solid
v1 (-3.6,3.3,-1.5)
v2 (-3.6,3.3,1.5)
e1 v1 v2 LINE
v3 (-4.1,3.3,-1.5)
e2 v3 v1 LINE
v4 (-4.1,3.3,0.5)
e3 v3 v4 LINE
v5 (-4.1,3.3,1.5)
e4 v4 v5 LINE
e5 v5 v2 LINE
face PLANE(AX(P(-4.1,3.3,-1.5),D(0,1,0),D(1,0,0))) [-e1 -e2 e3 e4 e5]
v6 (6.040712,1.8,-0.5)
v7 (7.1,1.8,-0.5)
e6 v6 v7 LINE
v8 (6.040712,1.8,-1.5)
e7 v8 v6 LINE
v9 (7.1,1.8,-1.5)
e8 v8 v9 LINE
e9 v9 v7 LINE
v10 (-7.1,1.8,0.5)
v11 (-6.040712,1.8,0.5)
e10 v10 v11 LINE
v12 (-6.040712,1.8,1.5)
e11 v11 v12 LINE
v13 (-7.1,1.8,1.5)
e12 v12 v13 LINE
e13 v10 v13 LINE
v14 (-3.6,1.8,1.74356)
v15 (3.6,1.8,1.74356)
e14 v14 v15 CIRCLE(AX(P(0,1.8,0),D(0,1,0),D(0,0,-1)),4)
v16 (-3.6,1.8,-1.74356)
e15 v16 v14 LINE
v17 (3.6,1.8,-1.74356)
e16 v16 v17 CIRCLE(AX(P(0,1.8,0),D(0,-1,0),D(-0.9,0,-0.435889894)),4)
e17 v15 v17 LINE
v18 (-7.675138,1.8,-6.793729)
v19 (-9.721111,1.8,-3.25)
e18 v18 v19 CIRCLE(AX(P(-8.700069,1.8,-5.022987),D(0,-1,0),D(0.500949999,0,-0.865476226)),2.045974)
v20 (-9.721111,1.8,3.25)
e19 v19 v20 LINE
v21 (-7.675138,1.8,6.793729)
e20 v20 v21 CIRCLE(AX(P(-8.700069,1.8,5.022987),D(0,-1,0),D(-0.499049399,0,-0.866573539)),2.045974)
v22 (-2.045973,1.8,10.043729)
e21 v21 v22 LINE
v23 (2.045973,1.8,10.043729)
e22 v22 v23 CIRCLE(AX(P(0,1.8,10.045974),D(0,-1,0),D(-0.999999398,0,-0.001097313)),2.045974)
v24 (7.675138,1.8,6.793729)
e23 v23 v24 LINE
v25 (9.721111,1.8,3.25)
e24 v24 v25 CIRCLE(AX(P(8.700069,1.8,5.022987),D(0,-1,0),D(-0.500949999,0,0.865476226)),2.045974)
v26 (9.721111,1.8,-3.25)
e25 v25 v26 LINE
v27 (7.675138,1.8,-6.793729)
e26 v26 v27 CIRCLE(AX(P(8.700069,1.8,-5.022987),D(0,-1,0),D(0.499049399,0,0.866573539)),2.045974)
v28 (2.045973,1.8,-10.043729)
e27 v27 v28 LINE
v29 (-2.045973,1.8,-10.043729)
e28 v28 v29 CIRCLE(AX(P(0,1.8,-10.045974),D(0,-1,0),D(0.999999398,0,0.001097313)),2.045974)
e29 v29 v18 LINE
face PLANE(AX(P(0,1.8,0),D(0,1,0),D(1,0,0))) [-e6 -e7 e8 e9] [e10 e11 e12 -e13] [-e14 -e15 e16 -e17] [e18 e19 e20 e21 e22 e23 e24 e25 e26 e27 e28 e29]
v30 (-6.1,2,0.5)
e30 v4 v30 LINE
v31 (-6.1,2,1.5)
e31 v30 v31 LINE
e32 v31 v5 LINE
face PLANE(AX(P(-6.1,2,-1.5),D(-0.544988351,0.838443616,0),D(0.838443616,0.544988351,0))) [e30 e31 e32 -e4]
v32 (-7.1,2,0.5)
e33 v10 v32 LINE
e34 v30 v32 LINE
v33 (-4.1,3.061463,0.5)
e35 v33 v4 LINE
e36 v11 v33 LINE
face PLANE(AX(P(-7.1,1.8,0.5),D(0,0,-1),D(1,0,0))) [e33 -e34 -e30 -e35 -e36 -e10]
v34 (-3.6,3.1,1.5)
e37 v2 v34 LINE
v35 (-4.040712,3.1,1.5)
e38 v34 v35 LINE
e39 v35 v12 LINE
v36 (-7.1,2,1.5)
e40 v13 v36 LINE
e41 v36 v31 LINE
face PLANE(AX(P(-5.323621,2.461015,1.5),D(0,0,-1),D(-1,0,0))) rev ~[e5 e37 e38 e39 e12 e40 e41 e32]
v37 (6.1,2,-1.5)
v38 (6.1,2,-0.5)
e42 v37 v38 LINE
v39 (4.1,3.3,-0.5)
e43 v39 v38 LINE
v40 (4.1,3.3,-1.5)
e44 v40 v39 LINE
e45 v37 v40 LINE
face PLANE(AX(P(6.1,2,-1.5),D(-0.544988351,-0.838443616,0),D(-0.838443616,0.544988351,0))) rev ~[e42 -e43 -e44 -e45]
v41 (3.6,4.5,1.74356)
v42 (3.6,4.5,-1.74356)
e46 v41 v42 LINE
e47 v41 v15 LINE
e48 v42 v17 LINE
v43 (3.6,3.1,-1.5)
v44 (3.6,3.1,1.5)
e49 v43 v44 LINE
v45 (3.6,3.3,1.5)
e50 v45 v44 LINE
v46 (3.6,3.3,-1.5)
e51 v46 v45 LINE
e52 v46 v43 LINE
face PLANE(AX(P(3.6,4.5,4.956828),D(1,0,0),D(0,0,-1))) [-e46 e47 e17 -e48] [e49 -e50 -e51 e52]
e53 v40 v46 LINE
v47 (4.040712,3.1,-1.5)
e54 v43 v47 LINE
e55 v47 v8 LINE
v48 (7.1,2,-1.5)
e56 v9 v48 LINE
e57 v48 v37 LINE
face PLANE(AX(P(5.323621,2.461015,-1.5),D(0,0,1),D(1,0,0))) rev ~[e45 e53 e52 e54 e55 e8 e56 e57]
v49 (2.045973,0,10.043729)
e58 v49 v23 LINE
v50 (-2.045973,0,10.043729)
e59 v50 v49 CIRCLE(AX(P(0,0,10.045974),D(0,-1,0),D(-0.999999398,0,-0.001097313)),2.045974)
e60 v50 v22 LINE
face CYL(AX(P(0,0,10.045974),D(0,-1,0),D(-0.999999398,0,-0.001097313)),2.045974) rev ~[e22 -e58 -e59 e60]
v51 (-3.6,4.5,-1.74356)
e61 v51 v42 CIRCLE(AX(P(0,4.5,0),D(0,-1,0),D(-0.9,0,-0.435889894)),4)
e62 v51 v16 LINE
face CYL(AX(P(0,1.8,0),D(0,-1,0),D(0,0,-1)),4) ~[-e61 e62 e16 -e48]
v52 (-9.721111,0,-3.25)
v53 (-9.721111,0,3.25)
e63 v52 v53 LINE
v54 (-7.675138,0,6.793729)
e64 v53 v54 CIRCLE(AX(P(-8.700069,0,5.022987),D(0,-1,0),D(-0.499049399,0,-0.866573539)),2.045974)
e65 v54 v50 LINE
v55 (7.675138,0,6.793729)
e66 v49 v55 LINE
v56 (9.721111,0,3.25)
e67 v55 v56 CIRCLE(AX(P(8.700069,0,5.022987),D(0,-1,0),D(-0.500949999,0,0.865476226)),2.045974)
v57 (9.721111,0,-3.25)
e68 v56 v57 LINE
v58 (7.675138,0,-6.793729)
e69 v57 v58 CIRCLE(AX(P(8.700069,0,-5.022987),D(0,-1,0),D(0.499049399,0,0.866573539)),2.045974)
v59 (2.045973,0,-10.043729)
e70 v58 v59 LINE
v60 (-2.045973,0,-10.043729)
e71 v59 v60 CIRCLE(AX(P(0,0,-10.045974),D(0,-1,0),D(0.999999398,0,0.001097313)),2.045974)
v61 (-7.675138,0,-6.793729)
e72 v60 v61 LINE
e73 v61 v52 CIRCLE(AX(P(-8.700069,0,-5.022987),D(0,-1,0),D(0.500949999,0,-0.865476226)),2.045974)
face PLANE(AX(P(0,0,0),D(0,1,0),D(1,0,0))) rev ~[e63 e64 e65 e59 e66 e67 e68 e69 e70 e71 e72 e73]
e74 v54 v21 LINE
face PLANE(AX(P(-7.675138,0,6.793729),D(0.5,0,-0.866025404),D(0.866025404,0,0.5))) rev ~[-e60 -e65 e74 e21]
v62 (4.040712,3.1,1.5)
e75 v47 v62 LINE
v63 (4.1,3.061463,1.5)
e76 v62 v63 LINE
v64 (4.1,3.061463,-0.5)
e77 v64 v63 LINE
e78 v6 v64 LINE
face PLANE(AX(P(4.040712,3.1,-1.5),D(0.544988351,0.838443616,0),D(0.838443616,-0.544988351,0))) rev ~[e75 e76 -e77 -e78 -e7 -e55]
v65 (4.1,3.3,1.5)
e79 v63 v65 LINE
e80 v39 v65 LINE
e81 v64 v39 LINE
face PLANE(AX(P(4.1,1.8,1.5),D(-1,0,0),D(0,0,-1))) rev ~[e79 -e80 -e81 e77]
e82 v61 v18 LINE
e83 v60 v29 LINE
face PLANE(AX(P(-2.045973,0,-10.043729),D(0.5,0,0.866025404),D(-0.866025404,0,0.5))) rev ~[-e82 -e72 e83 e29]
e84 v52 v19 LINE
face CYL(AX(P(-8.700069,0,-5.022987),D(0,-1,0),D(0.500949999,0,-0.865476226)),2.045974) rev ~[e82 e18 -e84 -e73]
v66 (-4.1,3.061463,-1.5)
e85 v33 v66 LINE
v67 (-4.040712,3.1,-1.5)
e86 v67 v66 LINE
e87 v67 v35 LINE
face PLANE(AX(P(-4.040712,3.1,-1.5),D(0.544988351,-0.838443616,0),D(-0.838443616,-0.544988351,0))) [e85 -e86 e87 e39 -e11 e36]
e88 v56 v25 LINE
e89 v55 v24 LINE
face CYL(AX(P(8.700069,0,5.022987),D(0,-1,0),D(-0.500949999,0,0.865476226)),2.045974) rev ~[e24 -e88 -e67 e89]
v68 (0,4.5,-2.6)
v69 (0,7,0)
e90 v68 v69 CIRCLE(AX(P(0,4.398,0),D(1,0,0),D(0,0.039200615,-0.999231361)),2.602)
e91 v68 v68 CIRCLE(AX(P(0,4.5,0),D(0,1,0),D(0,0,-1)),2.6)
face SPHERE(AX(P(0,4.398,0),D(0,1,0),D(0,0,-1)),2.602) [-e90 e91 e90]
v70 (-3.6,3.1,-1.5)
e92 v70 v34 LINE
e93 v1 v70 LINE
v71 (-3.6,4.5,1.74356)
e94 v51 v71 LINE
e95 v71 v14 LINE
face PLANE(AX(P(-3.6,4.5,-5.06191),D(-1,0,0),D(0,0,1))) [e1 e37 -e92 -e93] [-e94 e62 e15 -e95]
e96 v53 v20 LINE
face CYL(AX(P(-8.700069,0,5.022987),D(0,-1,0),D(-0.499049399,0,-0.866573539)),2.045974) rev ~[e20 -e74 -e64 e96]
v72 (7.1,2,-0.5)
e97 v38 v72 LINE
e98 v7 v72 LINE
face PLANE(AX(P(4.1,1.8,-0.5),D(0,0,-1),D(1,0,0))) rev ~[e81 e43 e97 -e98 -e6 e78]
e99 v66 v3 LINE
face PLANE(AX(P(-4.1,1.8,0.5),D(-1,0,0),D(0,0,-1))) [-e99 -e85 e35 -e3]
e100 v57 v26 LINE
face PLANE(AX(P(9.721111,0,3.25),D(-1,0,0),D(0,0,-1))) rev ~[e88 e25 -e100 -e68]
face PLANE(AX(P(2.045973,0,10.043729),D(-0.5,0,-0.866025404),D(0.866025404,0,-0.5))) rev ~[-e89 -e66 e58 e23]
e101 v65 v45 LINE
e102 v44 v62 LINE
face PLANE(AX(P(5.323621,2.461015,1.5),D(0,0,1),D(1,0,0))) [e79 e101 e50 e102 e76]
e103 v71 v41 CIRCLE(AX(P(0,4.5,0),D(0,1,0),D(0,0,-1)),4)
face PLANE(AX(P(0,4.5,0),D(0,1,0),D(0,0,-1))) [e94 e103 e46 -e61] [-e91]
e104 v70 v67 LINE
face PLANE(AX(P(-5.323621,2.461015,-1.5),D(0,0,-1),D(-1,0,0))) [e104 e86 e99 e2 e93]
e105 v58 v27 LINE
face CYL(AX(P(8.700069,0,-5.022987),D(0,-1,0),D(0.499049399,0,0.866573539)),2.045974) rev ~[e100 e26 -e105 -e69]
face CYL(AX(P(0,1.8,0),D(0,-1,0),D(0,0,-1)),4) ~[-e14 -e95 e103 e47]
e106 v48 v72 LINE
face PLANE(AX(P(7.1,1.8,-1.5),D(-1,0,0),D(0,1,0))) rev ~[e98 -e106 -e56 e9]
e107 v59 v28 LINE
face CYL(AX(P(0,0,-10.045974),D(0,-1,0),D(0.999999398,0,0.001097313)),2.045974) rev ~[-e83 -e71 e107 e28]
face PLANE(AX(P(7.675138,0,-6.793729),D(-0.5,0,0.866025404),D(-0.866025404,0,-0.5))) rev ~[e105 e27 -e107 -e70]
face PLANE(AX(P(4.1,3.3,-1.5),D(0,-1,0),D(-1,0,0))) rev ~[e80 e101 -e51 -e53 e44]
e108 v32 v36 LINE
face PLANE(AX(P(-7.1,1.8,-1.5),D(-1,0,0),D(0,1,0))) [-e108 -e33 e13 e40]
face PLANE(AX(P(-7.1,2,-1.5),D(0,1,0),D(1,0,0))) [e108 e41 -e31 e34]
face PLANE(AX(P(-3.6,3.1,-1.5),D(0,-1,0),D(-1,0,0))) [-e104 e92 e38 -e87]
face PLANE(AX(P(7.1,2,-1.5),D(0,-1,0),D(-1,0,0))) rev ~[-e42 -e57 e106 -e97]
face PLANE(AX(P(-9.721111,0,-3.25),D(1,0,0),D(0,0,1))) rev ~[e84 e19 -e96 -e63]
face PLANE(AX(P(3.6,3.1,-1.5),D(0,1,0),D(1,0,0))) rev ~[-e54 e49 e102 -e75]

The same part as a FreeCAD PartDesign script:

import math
import FreeCAD as App
import Part
import Sketcher
Q = App.Units.Quantity

doc = App.newDocument("Part")
body = doc.addObject("PartDesign::Body", "Body")

sketch1 = body.newObject("Sketcher::SketchObject", "Sketch")
sketch1.AttachmentSupport = (doc.getObject("XZ_Plane"), [""])
sketch1.MapMode = "FlatFace"
sketch1.addGeometry([
    Part.LineSegment(App.Vector(-9.721111, -3.25, 0), App.Vector(-9.721111, 3.25, 0)),
    Part.ArcOfCircle(Part.Circle(App.Vector(-8.700069, 5.022987, 0), App.Vector(0, 0, 1), 2.045974), math.radians(-119.937129), math.radians(59.937129)),
    Part.LineSegment(App.Vector(-7.675138, 6.793729, 0), App.Vector(-2.045973, 10.043729, 0)),
    Part.ArcOfCircle(Part.Circle(App.Vector(0, 10.045974, 0), App.Vector(0, 0, 1), 2.045974), math.radians(-179.937129), math.radians(-0.062871)),
    Part.LineSegment(App.Vector(2.045973, 10.043729, 0), App.Vector(7.675138, 6.793729, 0)),
    Part.ArcOfCircle(Part.Circle(App.Vector(8.700069, 5.022987, 0), App.Vector(0, 0, 1), 2.045974), math.radians(120.062871), math.radians(299.937129)),
    Part.LineSegment(App.Vector(9.721111, 3.25, 0), App.Vector(9.721111, -3.25, 0)),
    Part.ArcOfCircle(Part.Circle(App.Vector(8.700069, -5.022987, 0), App.Vector(0, 0, 1), 2.045974), math.radians(60.062871), math.radians(239.937129)),
    Part.LineSegment(App.Vector(7.675138, -6.793729, 0), App.Vector(2.045973, -10.043729, 0)),
    Part.ArcOfCircle(Part.Circle(App.Vector(0, -10.045974, 0), App.Vector(0, 0, 1), 2.045974), math.radians(0.062871), math.radians(179.937129)),
    Part.LineSegment(App.Vector(-2.045973, -10.043729, 0), App.Vector(-7.675138, -6.793729, 0)),
    Part.ArcOfCircle(Part.Circle(App.Vector(-8.700069, -5.022987, 0), App.Vector(0, 0, 1), 2.045974), math.radians(-59.937129), math.radians(119.937129)),
], False)
sketch1.addConstraint([
    Sketcher.Constraint("Coincident", 0, 2, 1, 1),
    Sketcher.Constraint("Coincident", 1, 2, 2, 1),
    Sketcher.Constraint("Coincident", 2, 2, 3, 1),
    Sketcher.Constraint("Coincident", 3, 2, 4, 1),
    Sketcher.Constraint("Coincident", 4, 2, 5, 1),
    Sketcher.Constraint("Coincident", 5, 2, 6, 1),
    Sketcher.Constraint("Coincident", 6, 2, 7, 1),
    Sketcher.Constraint("Coincident", 7, 2, 8, 1),
    Sketcher.Constraint("Coincident", 8, 2, 9, 1),
    Sketcher.Constraint("Coincident", 9, 2, 10, 1),
    Sketcher.Constraint("Coincident", 10, 2, 11, 1),
    Sketcher.Constraint("Coincident", 11, 2, 0, 1),
    Sketcher.Constraint("Vertical", 0),
    Sketcher.Constraint("Vertical", 6),
    Sketcher.Constraint("Equal", 1, 3),
    Sketcher.Constraint("Equal", 3, 5),
    Sketcher.Constraint("Equal", 5, 7),
    Sketcher.Constraint("Equal", 7, 9),
    Sketcher.Constraint("Equal", 9, 11),
    Sketcher.Constraint("Symmetric", 1, 3, 7, 3, -1, 1),
    Sketcher.Constraint("Symmetric", 3, 3, 9, 3, -1, 1),
    Sketcher.Constraint("Symmetric", 5, 3, 11, 3, -1, 1),
    Sketcher.Constraint("Symmetric", 1, 3, 5, 3, -2),
    Sketcher.Constraint("Symmetric", 2, 2, 3, 2, -2),
    Sketcher.Constraint("Parallel", 2, 8),
    Sketcher.Constraint("Parallel", 4, 10),
    Sketcher.Constraint("Horizontal", 1, 2, 4, 2),
    Sketcher.Constraint("Horizontal", 0, 2, 5, 2),
    Sketcher.Constraint("Horizontal", 8, 2, 9, 2),
    Sketcher.Constraint("Vertical", 4, 2, 7, 2),
    Sketcher.Constraint("Angle", 2, Q("30 deg")),
    Sketcher.Constraint("DistanceY", 0, 1, 0, 2, Q("6.5 mm")),
    Sketcher.Constraint("Distance", 2, Q("6.5 mm")),
    Sketcher.Constraint("Radius", 1, Q("2.045974 mm")),
    Sketcher.Constraint("DistanceX", 1, 3, -1, 1, Q("8.700069 mm")),
    Sketcher.Constraint("DistanceX", 0, 2, -1, 1, Q("9.721111 mm")),
    Sketcher.Constraint("DistanceY", 7, 3, 3, 3, Q("15.068961 mm")),
])
pad1 = body.newObject("PartDesign::Pad", "Pad")
pad1.Profile = sketch1
pad1.Length = 1.8
pad1.Reversed = True

sketch2 = body.newObject("Sketcher::SketchObject", "Sketch001")
sketch2.AttachmentSupport = (doc.getObject("XZ_Plane"), [""])
sketch2.MapMode = "FlatFace"
sketch2.AttachmentOffset = App.Placement(App.Vector(0, 0, -1.8), App.Rotation())
sketch2.addGeometry(Part.Circle(App.Vector(0, 0, 0), App.Vector(0, 0, 1), 4), False)
sketch2.addConstraint([
    Sketcher.Constraint("Coincident", 0, 3, -1, 1),
    Sketcher.Constraint("Diameter", 0, Q("8 mm")),
])
pad2 = body.newObject("PartDesign::Pad", "Pad001")
pad2.Profile = sketch2
pad2.Length = 2.7
pad2.Reversed = True

sketch3 = body.newObject("Sketcher::SketchObject", "Sketch002")
sketch3.AttachmentSupport = (doc.getObject("XZ_Plane"), [""])
sketch3.MapMode = "FlatFace"
sketch3.AttachmentOffset = App.Placement(App.Vector(0, 0, -4.5), App.Rotation())
sketch3.addGeometry([
    Part.LineSegment(App.Vector(-3.6, 4.956828, 0), App.Vector(-3.6, -5.06191, 0)),
    Part.LineSegment(App.Vector(-3.6, -5.06191, 0), App.Vector(-4.641273, -5.06191, 0)),
    Part.LineSegment(App.Vector(-4.641273, -5.06191, 0), App.Vector(-4.641273, 6.054386, 0)),
    Part.LineSegment(App.Vector(-4.641273, 6.054386, 0), App.Vector(4.769442, 6.054386, 0)),
    Part.LineSegment(App.Vector(4.769442, 6.054386, 0), App.Vector(4.769442, -5.287051, 0)),
    Part.LineSegment(App.Vector(4.769442, -5.287051, 0), App.Vector(3.6, -5.287051, 0)),
    Part.LineSegment(App.Vector(3.6, -5.287051, 0), App.Vector(3.6, 4.956828, 0)),
    Part.LineSegment(App.Vector(3.6, 4.956828, 0), App.Vector(-3.6, 4.956828, 0)),
], False)
sketch3.addConstraint([
    Sketcher.Constraint("Coincident", 0, 2, 1, 1),
    Sketcher.Constraint("Coincident", 1, 2, 2, 1),
    Sketcher.Constraint("Coincident", 2, 2, 3, 1),
    Sketcher.Constraint("Coincident", 3, 2, 4, 1),
    Sketcher.Constraint("Coincident", 4, 2, 5, 1),
    Sketcher.Constraint("Coincident", 5, 2, 6, 1),
    Sketcher.Constraint("Coincident", 6, 2, 7, 1),
    Sketcher.Constraint("Coincident", 7, 2, 0, 1),
    Sketcher.Constraint("Vertical", 0),
    Sketcher.Constraint("Horizontal", 1),
    Sketcher.Constraint("Vertical", 2),
    Sketcher.Constraint("Horizontal", 3),
    Sketcher.Constraint("Vertical", 4),
    Sketcher.Constraint("Horizontal", 5),
    Sketcher.Constraint("Vertical", 6),
    Sketcher.Constraint("Horizontal", 7),
    Sketcher.Constraint("DistanceX", 7, 2, 7, 1, Q("7.2 mm")),
    Sketcher.Constraint("DistanceX", 0, 2, -1, 1, Q("3.6 mm")),
    Sketcher.Constraint("DistanceX", 5, 2, 5, 1, Q("1.169442 mm")),
    Sketcher.Constraint("DistanceY", 0, 2, 0, 1, Q("10.018738 mm")),
    Sketcher.Constraint("DistanceY", 6, 1, 6, 2, Q("10.243878 mm")),
    Sketcher.Constraint("DistanceX", 1, 2, 1, 1, Q("1.041273 mm")),
    Sketcher.Constraint("DistanceY", 2, 1, 2, 2, Q("11.116297 mm")),
    Sketcher.Constraint("DistanceY", 0, 2, -1, 1, Q("5.06191 mm")),
])
pocket1 = body.newObject("PartDesign::Pocket", "Pocket")
pocket1.Profile = sketch3
pocket1.Length = 2.7
pocket1.Reversed = True

sketch4 = body.newObject("Sketcher::SketchObject", "Sketch003")
sketch4.AttachmentSupport = (doc.getObject("YZ_Plane"), [""])
sketch4.MapMode = "FlatFace"
sketch4.addGeometry([
    Part.LineSegment(App.Vector(7, 0, 0), App.Vector(4.5, 0, 0)),
    Part.LineSegment(App.Vector(4.5, 0, 0), App.Vector(4.5, -2.6, 0)),
    Part.ArcOfCircle(Part.Circle(App.Vector(4.398, 0, 0), App.Vector(0, 0, 1), 2.602), math.radians(-87.753395), math.radians(0)),
], False)
sketch4.addConstraint([
    Sketcher.Constraint("Coincident", 0, 2, 1, 1),
    Sketcher.Constraint("Coincident", 1, 2, 2, 1),
    Sketcher.Constraint("Coincident", 2, 2, 0, 1),
    Sketcher.Constraint("Horizontal", 0),
    Sketcher.Constraint("Vertical", 1),
    Sketcher.Constraint("PointOnObject", 2, 3, -1),
    Sketcher.Constraint("PointOnObject", 0, 2, -1),
    Sketcher.Constraint("DistanceX", 0, 2, 0, 1, Q("2.5 mm")),
    Sketcher.Constraint("DistanceY", 1, 2, 1, 1, Q("2.6 mm")),
    Sketcher.Constraint("DistanceX", -1, 1, 2, 2, Q("7 mm")),
])
revolution = body.newObject("PartDesign::Revolution", "Revolution")
revolution.Profile = sketch4
revolution.ReferenceAxis = (sketch4, ["H_Axis"])
revolution.Angle = 360

sketch5 = body.newObject("Sketcher::SketchObject", "Sketch004")
sketch5.AttachmentSupport = (doc.getObject("XY_Plane"), [""])
sketch5.MapMode = "FlatFace"
sketch5.addGeometry([
    Part.LineSegment(App.Vector(3.6, 3.3, 0), App.Vector(3.6, 3.1, 0)),
    Part.LineSegment(App.Vector(3.6, 3.1, 0), App.Vector(4.040712, 3.1, 0)),
    Part.LineSegment(App.Vector(4.040712, 3.1, 0), App.Vector(6.040712, 1.8, 0)),
    Part.LineSegment(App.Vector(6.040712, 1.8, 0), App.Vector(7.1, 1.8, 0)),
    Part.LineSegment(App.Vector(7.1, 1.8, 0), App.Vector(7.1, 2, 0)),
    Part.LineSegment(App.Vector(7.1, 2, 0), App.Vector(6.1, 2, 0)),
    Part.LineSegment(App.Vector(6.1, 2, 0), App.Vector(4.1, 3.3, 0)),
    Part.LineSegment(App.Vector(4.1, 3.3, 0), App.Vector(3.6, 3.3, 0)),
    Part.LineSegment(App.Vector(-7.1, 2, 0), App.Vector(-7.1, 1.8, 0)),
    Part.LineSegment(App.Vector(-7.1, 1.8, 0), App.Vector(-6.040712, 1.8, 0)),
    Part.LineSegment(App.Vector(-6.040712, 1.8, 0), App.Vector(-4.040712, 3.1, 0)),
    Part.LineSegment(App.Vector(-4.040712, 3.1, 0), App.Vector(-3.6, 3.1, 0)),
    Part.LineSegment(App.Vector(-3.6, 3.1, 0), App.Vector(-3.6, 3.3, 0)),
    Part.LineSegment(App.Vector(-3.6, 3.3, 0), App.Vector(-4.1, 3.3, 0)),
    Part.LineSegment(App.Vector(-4.1, 3.3, 0), App.Vector(-6.1, 2, 0)),
    Part.LineSegment(App.Vector(-6.1, 2, 0), App.Vector(-7.1, 2, 0)),
], False)
sketch5.addConstraint([
    Sketcher.Constraint("Coincident", 0, 2, 1, 1),
    Sketcher.Constraint("Coincident", 1, 2, 2, 1),
    Sketcher.Constraint("Coincident", 2, 2, 3, 1),
    Sketcher.Constraint("Coincident", 3, 2, 4, 1),
    Sketcher.Constraint("Coincident", 4, 2, 5, 1),
    Sketcher.Constraint("Coincident", 5, 2, 6, 1),
    Sketcher.Constraint("Coincident", 6, 2, 7, 1),
    Sketcher.Constraint("Coincident", 7, 2, 0, 1),
    Sketcher.Constraint("Coincident", 8, 2, 9, 1),
    Sketcher.Constraint("Coincident", 9, 2, 10, 1),
    Sketcher.Constraint("Coincident", 10, 2, 11, 1),
    Sketcher.Constraint("Coincident", 11, 2, 12, 1),
    Sketcher.Constraint("Coincident", 12, 2, 13, 1),
    Sketcher.Constraint("Coincident", 13, 2, 14, 1),
    Sketcher.Constraint("Coincident", 14, 2, 15, 1),
    Sketcher.Constraint("Coincident", 15, 2, 8, 1),
    Sketcher.Constraint("Vertical", 0),
    Sketcher.Constraint("Horizontal", 1),
    Sketcher.Constraint("Horizontal", 3),
    Sketcher.Constraint("Vertical", 4),
    Sketcher.Constraint("Horizontal", 5),
    Sketcher.Constraint("Horizontal", 7),
    Sketcher.Constraint("Vertical", 8),
    Sketcher.Constraint("Horizontal", 9),
    Sketcher.Constraint("Horizontal", 11),
    Sketcher.Constraint("Vertical", 12),
    Sketcher.Constraint("Horizontal", 13),
    Sketcher.Constraint("Horizontal", 15),
    Sketcher.Constraint("Symmetric", 3, 2, 8, 2, -2),
    Sketcher.Constraint("Symmetric", 1, 2, 10, 2, -2),
    Sketcher.Constraint("Symmetric", 7, 2, 12, 2, -2),
    Sketcher.Constraint("Symmetric", 5, 2, 14, 2, -2),
    Sketcher.Constraint("Parallel", 2, 6),
    Sketcher.Constraint("Parallel", 10, 14),
    Sketcher.Constraint("Equal", 3, 9),
    Sketcher.Constraint("Equal", 0, 4),
    Sketcher.Constraint("DistanceX", 5, 2, 5, 1, Q("1 mm")),
    Sketcher.Constraint("DistanceX", 7, 2, 7, 1, Q("0.5 mm")),
    Sketcher.Constraint("DistanceY", 0, 2, 0, 1, Q("0.2 mm")),
    Sketcher.Constraint("DistanceY", -1, 1, 4, 2, Q("2 mm")),
    Sketcher.Constraint("DistanceX", 1, 2, 2, 2, Q("2 mm")),
    Sketcher.Constraint("DistanceX", -1, 1, 0, 2, Q("3.6 mm")),
    Sketcher.Constraint("DistanceY", -1, 1, 0, 2, Q("3.1 mm")),
    Sketcher.Constraint("DistanceX", 1, 1, 1, 2, Q("0.440712 mm")),
])
pad3 = body.newObject("PartDesign::Pad", "Pad002")
pad3.Profile = sketch5
pad3.Type = "TwoLengths"
pad3.Length = 1.5
pad3.Length2 = 1.5

sketch6 = body.newObject("Sketcher::SketchObject", "Sketch005")
sketch6.AttachmentSupport = (doc.getObject("XZ_Plane"), [""])
sketch6.MapMode = "FlatFace"
sketch6.AttachmentOffset = App.Placement(App.Vector(0, 0, -1.8), App.Rotation())
sketch6.addGeometry([
    Part.LineSegment(App.Vector(-7.1, -1.5, 0), App.Vector(-7.1, 0.5, 0)),
    Part.LineSegment(App.Vector(-7.1, 0.5, 0), App.Vector(-4.1, 0.5, 0)),
    Part.LineSegment(App.Vector(-4.1, 0.5, 0), App.Vector(-4.1, -1.5, 0)),
    Part.LineSegment(App.Vector(-4.1, -1.5, 0), App.Vector(-7.1, -1.5, 0)),
    Part.LineSegment(App.Vector(4.1, -0.5, 0), App.Vector(4.1, 1.5, 0)),
    Part.LineSegment(App.Vector(4.1, 1.5, 0), App.Vector(7.1, 1.5, 0)),
    Part.LineSegment(App.Vector(7.1, 1.5, 0), App.Vector(7.1, -0.5, 0)),
    Part.LineSegment(App.Vector(7.1, -0.5, 0), App.Vector(4.1, -0.5, 0)),
], False)
sketch6.addConstraint([
    Sketcher.Constraint("Coincident", 0, 2, 1, 1),
    Sketcher.Constraint("Coincident", 1, 2, 2, 1),
    Sketcher.Constraint("Coincident", 2, 2, 3, 1),
    Sketcher.Constraint("Coincident", 3, 2, 0, 1),
    Sketcher.Constraint("Coincident", 4, 2, 5, 1),
    Sketcher.Constraint("Coincident", 5, 2, 6, 1),
    Sketcher.Constraint("Coincident", 6, 2, 7, 1),
    Sketcher.Constraint("Coincident", 7, 2, 4, 1),
    Sketcher.Constraint("Vertical", 0),
    Sketcher.Constraint("Horizontal", 1),
    Sketcher.Constraint("Vertical", 2),
    Sketcher.Constraint("Horizontal", 3),
    Sketcher.Constraint("Vertical", 4),
    Sketcher.Constraint("Horizontal", 5),
    Sketcher.Constraint("Vertical", 6),
    Sketcher.Constraint("Horizontal", 7),
    Sketcher.Constraint("Symmetric", 2, 2, 4, 2, -1, 1),
    Sketcher.Constraint("Symmetric", 0, 2, 6, 2, -1, 1),
    Sketcher.Constraint("DistanceX", 1, 1, 1, 2, Q("3 mm")),
    Sketcher.Constraint("DistanceY", 0, 1, 0, 2, Q("2 mm")),
    Sketcher.Constraint("DistanceY", 1, 2, 4, 2, Q("1 mm")),
    Sketcher.Constraint("DistanceX", 0, 2, -1, 1, Q("7.1 mm")),
])
pocket2 = body.newObject("PartDesign::Pocket", "Pocket001")
pocket2.Profile = sketch6
pocket2.Length = 1.5

doc.recompute()
